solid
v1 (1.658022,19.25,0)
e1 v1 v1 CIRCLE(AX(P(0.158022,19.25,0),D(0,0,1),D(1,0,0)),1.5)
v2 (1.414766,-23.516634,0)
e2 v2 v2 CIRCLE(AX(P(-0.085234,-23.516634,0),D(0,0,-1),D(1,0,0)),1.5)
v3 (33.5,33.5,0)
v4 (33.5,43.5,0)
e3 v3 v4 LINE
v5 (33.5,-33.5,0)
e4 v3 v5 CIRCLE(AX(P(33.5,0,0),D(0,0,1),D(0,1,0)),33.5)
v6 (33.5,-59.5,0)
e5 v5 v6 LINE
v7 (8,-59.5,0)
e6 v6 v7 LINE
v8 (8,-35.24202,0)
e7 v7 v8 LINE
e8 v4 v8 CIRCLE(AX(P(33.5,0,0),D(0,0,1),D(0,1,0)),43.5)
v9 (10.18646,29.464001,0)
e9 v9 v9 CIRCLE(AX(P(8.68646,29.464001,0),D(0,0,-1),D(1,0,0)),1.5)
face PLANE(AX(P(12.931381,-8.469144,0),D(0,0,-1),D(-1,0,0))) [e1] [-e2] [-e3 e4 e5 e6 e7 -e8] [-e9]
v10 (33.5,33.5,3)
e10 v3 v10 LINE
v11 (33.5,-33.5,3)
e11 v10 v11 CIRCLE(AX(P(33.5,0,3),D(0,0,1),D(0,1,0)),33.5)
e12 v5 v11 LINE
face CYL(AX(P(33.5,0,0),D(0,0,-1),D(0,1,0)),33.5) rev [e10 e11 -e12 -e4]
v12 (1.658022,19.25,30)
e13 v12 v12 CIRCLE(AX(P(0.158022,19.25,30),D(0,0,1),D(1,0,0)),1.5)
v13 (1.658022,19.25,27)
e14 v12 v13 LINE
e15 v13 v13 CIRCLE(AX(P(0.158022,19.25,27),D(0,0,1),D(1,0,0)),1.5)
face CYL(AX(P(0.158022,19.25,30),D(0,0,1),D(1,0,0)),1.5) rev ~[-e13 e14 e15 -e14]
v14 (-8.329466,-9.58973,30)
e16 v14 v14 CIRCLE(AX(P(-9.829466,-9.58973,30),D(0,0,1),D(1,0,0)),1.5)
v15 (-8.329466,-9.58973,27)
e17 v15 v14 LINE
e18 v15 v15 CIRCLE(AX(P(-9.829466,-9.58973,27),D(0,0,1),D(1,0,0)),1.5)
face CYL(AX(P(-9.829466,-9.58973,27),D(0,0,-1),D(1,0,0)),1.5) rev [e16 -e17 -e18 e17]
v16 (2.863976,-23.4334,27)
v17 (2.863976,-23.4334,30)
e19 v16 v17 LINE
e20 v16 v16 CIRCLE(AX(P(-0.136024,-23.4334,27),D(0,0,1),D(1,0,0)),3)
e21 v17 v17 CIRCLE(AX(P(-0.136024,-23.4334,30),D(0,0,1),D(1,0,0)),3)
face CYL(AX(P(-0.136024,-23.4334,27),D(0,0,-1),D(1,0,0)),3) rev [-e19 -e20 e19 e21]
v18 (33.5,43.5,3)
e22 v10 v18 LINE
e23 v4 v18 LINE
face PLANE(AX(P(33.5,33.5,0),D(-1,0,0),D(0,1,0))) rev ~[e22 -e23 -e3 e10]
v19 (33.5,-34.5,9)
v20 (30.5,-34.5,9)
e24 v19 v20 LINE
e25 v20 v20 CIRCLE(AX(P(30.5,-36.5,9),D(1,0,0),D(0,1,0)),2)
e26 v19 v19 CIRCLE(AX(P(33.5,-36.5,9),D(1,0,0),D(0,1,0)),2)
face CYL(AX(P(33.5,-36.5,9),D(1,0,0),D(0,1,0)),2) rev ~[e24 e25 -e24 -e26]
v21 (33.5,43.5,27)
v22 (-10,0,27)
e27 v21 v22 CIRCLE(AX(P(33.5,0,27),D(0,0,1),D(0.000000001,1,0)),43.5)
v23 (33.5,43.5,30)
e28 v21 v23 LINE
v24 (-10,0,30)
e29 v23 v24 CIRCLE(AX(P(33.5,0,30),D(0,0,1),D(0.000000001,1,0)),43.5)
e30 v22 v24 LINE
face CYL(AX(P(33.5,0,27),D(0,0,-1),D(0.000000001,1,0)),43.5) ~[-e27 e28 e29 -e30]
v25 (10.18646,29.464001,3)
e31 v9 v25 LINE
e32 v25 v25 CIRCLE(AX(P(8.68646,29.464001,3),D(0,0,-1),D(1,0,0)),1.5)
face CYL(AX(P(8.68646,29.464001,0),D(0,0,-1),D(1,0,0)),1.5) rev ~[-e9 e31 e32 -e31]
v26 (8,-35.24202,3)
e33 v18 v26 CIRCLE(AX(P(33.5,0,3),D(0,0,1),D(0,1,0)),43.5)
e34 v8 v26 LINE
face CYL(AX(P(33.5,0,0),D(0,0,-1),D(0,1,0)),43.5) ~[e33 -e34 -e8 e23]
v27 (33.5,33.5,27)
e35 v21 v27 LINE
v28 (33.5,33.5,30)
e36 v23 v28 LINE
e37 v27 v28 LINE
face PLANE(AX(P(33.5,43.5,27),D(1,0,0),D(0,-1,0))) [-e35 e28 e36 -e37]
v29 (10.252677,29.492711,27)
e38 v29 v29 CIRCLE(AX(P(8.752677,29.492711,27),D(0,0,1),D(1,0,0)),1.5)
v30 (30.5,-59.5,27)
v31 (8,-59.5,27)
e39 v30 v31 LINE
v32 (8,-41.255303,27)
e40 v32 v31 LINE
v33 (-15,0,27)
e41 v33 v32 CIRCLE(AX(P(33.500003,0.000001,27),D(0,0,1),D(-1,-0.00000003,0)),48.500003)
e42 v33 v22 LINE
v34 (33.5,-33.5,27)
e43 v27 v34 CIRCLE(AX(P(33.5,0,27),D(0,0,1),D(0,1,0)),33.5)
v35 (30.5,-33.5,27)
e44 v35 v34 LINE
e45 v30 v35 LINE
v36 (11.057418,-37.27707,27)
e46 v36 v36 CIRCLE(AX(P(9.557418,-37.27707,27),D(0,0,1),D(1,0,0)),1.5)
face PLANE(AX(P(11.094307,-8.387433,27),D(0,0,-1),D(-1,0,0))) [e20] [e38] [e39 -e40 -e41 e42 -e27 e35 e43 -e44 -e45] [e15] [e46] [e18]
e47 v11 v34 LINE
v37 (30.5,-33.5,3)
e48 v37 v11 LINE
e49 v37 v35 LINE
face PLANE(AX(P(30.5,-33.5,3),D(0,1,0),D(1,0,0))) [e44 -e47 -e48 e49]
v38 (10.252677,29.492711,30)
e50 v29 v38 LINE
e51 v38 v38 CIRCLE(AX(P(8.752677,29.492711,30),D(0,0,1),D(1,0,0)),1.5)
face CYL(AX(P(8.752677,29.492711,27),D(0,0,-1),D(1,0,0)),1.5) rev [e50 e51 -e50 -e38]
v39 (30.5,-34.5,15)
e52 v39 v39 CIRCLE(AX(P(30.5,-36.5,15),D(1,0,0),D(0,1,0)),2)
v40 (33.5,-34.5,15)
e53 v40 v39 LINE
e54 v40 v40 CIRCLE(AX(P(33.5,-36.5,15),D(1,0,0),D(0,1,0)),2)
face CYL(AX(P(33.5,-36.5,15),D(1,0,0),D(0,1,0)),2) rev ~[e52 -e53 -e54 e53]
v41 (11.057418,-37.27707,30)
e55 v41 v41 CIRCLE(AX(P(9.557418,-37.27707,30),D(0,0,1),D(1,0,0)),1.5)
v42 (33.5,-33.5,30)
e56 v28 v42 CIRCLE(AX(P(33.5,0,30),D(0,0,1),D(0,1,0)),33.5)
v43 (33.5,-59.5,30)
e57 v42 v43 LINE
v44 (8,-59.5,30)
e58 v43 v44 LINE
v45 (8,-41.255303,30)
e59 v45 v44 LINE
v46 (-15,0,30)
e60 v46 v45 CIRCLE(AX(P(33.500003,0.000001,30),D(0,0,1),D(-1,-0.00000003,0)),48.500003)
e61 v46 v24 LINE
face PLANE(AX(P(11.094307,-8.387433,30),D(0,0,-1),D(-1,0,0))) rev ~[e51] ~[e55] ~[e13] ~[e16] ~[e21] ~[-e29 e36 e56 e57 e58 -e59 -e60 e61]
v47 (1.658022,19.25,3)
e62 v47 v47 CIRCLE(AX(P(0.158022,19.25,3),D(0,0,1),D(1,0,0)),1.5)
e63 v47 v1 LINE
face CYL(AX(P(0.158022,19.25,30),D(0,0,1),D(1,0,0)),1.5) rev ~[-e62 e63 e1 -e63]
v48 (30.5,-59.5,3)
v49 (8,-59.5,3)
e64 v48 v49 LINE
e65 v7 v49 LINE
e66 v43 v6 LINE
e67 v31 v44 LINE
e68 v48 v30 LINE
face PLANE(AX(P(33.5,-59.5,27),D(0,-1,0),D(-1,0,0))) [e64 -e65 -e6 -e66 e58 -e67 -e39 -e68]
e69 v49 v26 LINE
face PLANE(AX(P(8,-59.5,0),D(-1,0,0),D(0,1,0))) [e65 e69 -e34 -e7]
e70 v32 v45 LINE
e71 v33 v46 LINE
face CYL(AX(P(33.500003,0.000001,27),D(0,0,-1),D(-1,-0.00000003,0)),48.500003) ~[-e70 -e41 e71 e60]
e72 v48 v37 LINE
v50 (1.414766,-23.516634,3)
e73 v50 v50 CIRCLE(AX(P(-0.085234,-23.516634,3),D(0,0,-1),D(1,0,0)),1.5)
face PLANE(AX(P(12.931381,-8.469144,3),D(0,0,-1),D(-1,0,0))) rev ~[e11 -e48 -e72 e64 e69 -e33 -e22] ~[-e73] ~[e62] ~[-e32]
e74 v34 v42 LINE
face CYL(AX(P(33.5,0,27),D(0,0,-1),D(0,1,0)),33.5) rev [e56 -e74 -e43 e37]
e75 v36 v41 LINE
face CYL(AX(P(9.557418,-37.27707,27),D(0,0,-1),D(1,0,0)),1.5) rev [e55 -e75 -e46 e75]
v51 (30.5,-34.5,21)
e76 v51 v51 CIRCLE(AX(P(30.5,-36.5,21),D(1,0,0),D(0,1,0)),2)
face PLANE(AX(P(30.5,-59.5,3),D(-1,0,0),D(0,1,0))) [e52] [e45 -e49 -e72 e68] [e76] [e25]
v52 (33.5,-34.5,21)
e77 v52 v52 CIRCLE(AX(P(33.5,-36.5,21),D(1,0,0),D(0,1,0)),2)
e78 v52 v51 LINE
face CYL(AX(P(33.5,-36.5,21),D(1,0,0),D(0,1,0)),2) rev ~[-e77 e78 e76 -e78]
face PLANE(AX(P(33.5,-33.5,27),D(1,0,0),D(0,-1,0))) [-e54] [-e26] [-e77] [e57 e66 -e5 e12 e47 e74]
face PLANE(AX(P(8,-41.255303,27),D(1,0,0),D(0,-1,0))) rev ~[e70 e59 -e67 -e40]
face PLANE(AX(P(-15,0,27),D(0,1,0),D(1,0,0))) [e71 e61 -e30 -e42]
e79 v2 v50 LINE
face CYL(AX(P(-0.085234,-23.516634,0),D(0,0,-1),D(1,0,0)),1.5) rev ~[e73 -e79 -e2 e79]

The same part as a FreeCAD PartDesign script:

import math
import FreeCAD as App
import Part
import Sketcher

V = App.Vector
Q = App.Units.Quantity

doc = App.newDocument("Part")
body = doc.addObject("PartDesign::Body", "Body")

# Sketch on XY plane
sketch1 = body.newObject("Sketcher::SketchObject", "Sketch")
sketch1.AttachmentSupport = (doc.getObject("XY_Plane"), [""])
sketch1.MapMode = "FlatFace"
sketch1.addGeometry([
    Part.ArcOfCircle(Part.Circle(V(34, 0, 0), V(0, 0, 1), 34), math.radians(90), math.radians(270)),  # 0
    Part.LineSegment(V(34, 34, 0), V(34, 44, 0)),  # 1
    Part.ArcOfCircle(Part.Circle(V(34, 0, 0), V(0, 0, 1), 43), math.radians(90), math.radians(234)),  # 2
    Part.LineSegment(V(8, -35, 0), V(8, -60, 0)),  # 3
    Part.LineSegment(V(8, -60, 0), V(34, -60, 0)),  # 4
    Part.LineSegment(V(34, -60, 0), V(34, -34, 0)),  # 5
], False)
sketch1.addConstraint([
    Sketcher.Constraint("Coincident", 0, 1, 1, 1),
    Sketcher.Constraint("Coincident", 1, 2, 2, 1),
    Sketcher.Constraint("Coincident", 2, 2, 3, 1),
    Sketcher.Constraint("Coincident", 3, 2, 4, 1),
    Sketcher.Constraint("Coincident", 4, 2, 5, 1),
    Sketcher.Constraint("Coincident", 5, 2, 0, 2),
    Sketcher.Constraint("Vertical", 1),
    Sketcher.Constraint("Vertical", 3),
    Sketcher.Constraint("Horizontal", 4),
    Sketcher.Constraint("Vertical", 5),
    Sketcher.Constraint("Coincident", 2, 3, 0, 3),
    Sketcher.Constraint("Symmetric", 0, 1, 5, 2, -1),
    Sketcher.Constraint("Vertical", 2, 3, 0, 1),
    Sketcher.Constraint("Radius", 0, Q("33.5 mm")),
    Sketcher.Constraint("Radius", 2, Q("43.5 mm")),
    Sketcher.Constraint("DistanceY", 5, 1, 5, 2, Q("26 mm")),
    Sketcher.Constraint("DistanceX", 4, 1, 4, 2, Q("25.5 mm")),
    Sketcher.Constraint("DistanceX", -1, 1, 2, 2, Q("8 mm")),
])
pad1 = body.newObject("PartDesign::Pad", "Pad")
pad1.Profile = sketch1
pad1.Length = 3

# Sketch on XY plane
sketch2 = body.newObject("Sketcher::SketchObject", "Sketch001")
sketch2.AttachmentSupport = (doc.getObject("XY_Plane"), [""])
sketch2.MapMode = "FlatFace"
sketch2.AttachmentOffset = App.Placement(V(0, 0, 3), App.Rotation())
sketch2.addGeometry([
    Part.LineSegment(V(30.5, -33.5, 0), V(30.5, -59.5, 0)),
    Part.LineSegment(V(30.5, -59.5, 0), V(33.5, -59.5, 0)),
    Part.LineSegment(V(33.5, -59.5, 0), V(33.5, -33.5, 0)),
    Part.LineSegment(V(33.5, -33.5, 0), V(30.5, -33.5, 0)),
], False)
sketch2.addConstraint([
    Sketcher.Constraint("Coincident", 0, 2, 1, 1),
    Sketcher.Constraint("Coincident", 1, 2, 2, 1),
    Sketcher.Constraint("Coincident", 2, 2, 3, 1),
    Sketcher.Constraint("Coincident", 3, 2, 0, 1),
    Sketcher.Constraint("Vertical", 0),
    Sketcher.Constraint("Horizontal", 1),
    Sketcher.Constraint("Vertical", 2),
    Sketcher.Constraint("Horizontal", 3),
    Sketcher.Constraint("DistanceX", 1, 1, 1, 2, Q("3 mm")),
    Sketcher.Constraint("DistanceY", 0, 2, 0, 1, Q("26 mm")),
    Sketcher.Constraint("DistanceX", -1, 1, 0, 2, Q("30.5 mm")),
    Sketcher.Constraint("DistanceY", 0, 2, -1, 1, Q("59.5 mm")),
])
pad2 = body.newObject("PartDesign::Pad", "Pad001")
pad2.Profile = sketch2
pad2.Length = 24

# Sketch on YZ plane
sketch3 = body.newObject("Sketcher::SketchObject", "Sketch002")
sketch3.AttachmentSupport = (doc.getObject("YZ_Plane"), [""])
sketch3.MapMode = "FlatFace"
sketch3.AttachmentOffset = App.Placement(V(0, 0, 33.5), App.Rotation())
sketch3.addGeometry([
    Part.Circle(V(-36.5, 21, 0), V(0, 0, 1), 2),
    Part.Circle(V(-36.5, 15, 0), V(0, 0, 1), 2),
    Part.Circle(V(-36.5, 9, 0), V(0, 0, 1), 2),
], False)
sketch3.addConstraint([
    Sketcher.Constraint("Equal", 0, 1),
    Sketcher.Constraint("Equal", 1, 2),
    Sketcher.Constraint("Vertical", 0, 3, 1, 3),
    Sketcher.Constraint("Vertical", 1, 3, 2, 3),
    Sketcher.Constraint("Diameter", 0, Q("4 mm")),
    Sketcher.Constraint("DistanceY", -1, 1, 0, 3, Q("21 mm")),
    Sketcher.Constraint("DistanceY", -1, 1, 1, 3, Q("15 mm")),
    Sketcher.Constraint("DistanceY", -1, 1, 2, 3, Q("9 mm")),
    Sketcher.Constraint("DistanceX", 0, 3, -1, 1, Q("36.5 mm")),
])
pocket1 = body.newObject("PartDesign::Pocket", "Pocket")
pocket1.Profile = sketch3
pocket1.Length = 3

# Sketch on XY plane
sketch4 = body.newObject("Sketcher::SketchObject", "Sketch003")
sketch4.AttachmentSupport = (doc.getObject("XY_Plane"), [""])
sketch4.MapMode = "FlatFace"
sketch4.AttachmentOffset = App.Placement(V(0, 0, 27), App.Rotation())
sketch4.addGeometry([
    Part.LineSegment(V(33.5, 33.5, 0), V(33.5, 43.5, 0)),  # 0
    Part.ArcOfCircle(Part.Circle(V(33.5, 0, 0), V(0, 0, 1), 43.5), math.radians(90), math.radians(180)),  # 1
    Part.LineSegment(V(-10, 0, 0), V(-15, 0, 0)),  # 2
    Part.ArcOfCircle(Part.Circle(V(33.5, 0, 0), V(0, 0, 1), 48.5), math.radians(-180), math.radians(-122)),  # 3
    Part.LineSegment(V(8, -41.3, 0), V(8, -59.5, 0)),  # 4
    Part.LineSegment(V(8, -59.5, 0), V(33.5, -59.5, 0)),  # 5
    Part.LineSegment(V(33.5, -59.5, 0), V(33.5, -33.5, 0)),  # 6
    Part.ArcOfCircle(Part.Circle(V(33.5, 0, 0), V(0, 0, 1), 33.5), math.radians(90), math.radians(270)),  # 7
    Part.Circle(V(9.6, -37.3, 0), V(0, 0, 1), 1.5),  # 8
    Part.Circle(V(-0.1, -23.4, 0), V(0, 0, 1), 3),  # 9
    Part.Circle(V(-9.8, -9.6, 0), V(0, 0, 1), 1.5),  # 10
    Part.Circle(V(8.8, 29.5, 0), V(0, 0, 1), 1.5),  # 11
], False)
sketch4.addConstraint([
    Sketcher.Constraint("Coincident", 0, 2, 1, 1),
    Sketcher.Constraint("Coincident", 1, 2, 2, 1),
    Sketcher.Constraint("Coincident", 2, 2, 3, 1),
    Sketcher.Constraint("Coincident", 3, 2, 4, 1),
    Sketcher.Constraint("Coincident", 4, 2, 5, 1),
    Sketcher.Constraint("Coincident", 5, 2, 6, 1),
    Sketcher.Constraint("Coincident", 6, 2, 7, 2),
    Sketcher.Constraint("Coincident", 7, 1, 0, 1),
    Sketcher.Constraint("Vertical", 0),
    Sketcher.Constraint("Horizontal", 2),
    Sketcher.Constraint("Vertical", 4),
    Sketcher.Constraint("Horizontal", 5),
    Sketcher.Constraint("Vertical", 6),
    Sketcher.Constraint("Coincident", 3, 3, 1, 3),
    Sketcher.Constraint("Coincident", 7, 3, 1, 3),
    Sketcher.Constraint("Equal", 8, 10),
    Sketcher.Constraint("Equal", 10, 11),
    Sketcher.Constraint("Symmetric", 6, 2, 7, 1, -1),
    Sketcher.Constraint("PointOnObject", 1, 2, -1),
    Sketcher.Constraint("Vertical", 7, 3, 0, 2),
    Sketcher.Constraint("Diameter", 8, Q("3 mm")),
    Sketcher.Constraint("Diameter", 9, Q("6 mm")),
    Sketcher.Constraint("Radius", 1, Q("43.5 mm")),
    Sketcher.Constraint("Radius", 7, Q("33.5 mm")),
    Sketcher.Constraint("DistanceX", 2, 2, 2, 1, Q("5 mm")),
    Sketcher.Constraint("DistanceY", 6, 1, 6, 2, Q("26 mm")),
    Sketcher.Constraint("DistanceX", 5, 1, 5, 2, Q("25.5 mm")),
    Sketcher.Constraint("DistanceX", 1, 2, -1, 1, Q("10 mm")),
    Sketcher.Constraint("DistanceY", 9, 3, -1, 1, Q("23.4334 mm")),
    Sketcher.Constraint("DistanceX", 9, 3, 11, 3, Q("8.888701 mm")),
    Sketcher.Constraint("DistanceY", 8, 3, -1, 1, Q("37.27707 mm")),
    Sketcher.Constraint("DistanceY", 10, 3, -1, 1, Q("9.58973 mm")),
    Sketcher.Constraint("DistanceY", -1, 1, 11, 3, Q("29.492711 mm")),
    Sketcher.Constraint("DistanceX", 8, 3, 1, 3, Q("23.942582 mm")),
    Sketcher.Constraint("DistanceX", 10, 3, 9, 3, Q("9.693442 mm")),
    Sketcher.Constraint("DistanceX", 10, 3, 3, 3, Q("43.329469 mm")),
])
pad3 = body.newObject("PartDesign::Pad", "Pad002")
pad3.Profile = sketch4
pad3.Length = 3

# Sketch on XY plane
sketch5 = body.newObject("Sketcher::SketchObject", "Sketch004")
sketch5.AttachmentSupport = (doc.getObject("XY_Plane"), [""])
sketch5.MapMode = "FlatFace"
sketch5.addGeometry([
    Part.Circle(V(8.7, 29.5, 0), V(0, 0, 1), 1.5),
    Part.Circle(V(-0.1, -23.5, 0), V(0, 0, 1), 1.5),
], False)
sketch5.addConstraint([
    Sketcher.Constraint("Equal", 0, 1),
    Sketcher.Constraint("Diameter", 0, Q("3 mm")),
    Sketcher.Constraint("DistanceY", -1, 1, 0, 3, Q("29.464001 mm")),
    Sketcher.Constraint("DistanceX", -1, 1, 0, 3, Q("8.68646 mm")),
    Sketcher.Constraint("DistanceX", 1, 3, -1, 1, Q("0.085234 mm")),
    Sketcher.Constraint("DistanceY", 1, 3, -1, 1, Q("23.516634 mm")),
])
pocket2 = body.newObject("PartDesign::Pocket", "Pocket001")
pocket2.Profile = sketch5
pocket2.Length = 3
pocket2.Reversed = True

# Sketch on XY plane
sketch6 = body.newObject("Sketcher::SketchObject", "Sketch005")
sketch6.AttachmentSupport = (doc.getObject("XY_Plane"), [""])
sketch6.MapMode = "FlatFace"
sketch6.AttachmentOffset = App.Placement(V(0, 0, 30), App.Rotation())
sketch6.addGeometry(Part.Circle(V(0.2, 19.2, 0), V(0, 0, 1), 1.5), False)
sketch6.addConstraint([
    Sketcher.Constraint("Diameter", 0, Q("3 mm")),
    Sketcher.Constraint("DistanceY", -1, 1, 0, 3, Q("19.25 mm")),
    Sketcher.Constraint("DistanceX", -1, 1, 0, 3, Q("0.158022 mm")),
])
pocket3 = body.newObject("PartDesign::Pocket", "Pocket002")
pocket3.Profile = sketch6
pocket3.Type = "ThroughAll"

doc.recompute()
